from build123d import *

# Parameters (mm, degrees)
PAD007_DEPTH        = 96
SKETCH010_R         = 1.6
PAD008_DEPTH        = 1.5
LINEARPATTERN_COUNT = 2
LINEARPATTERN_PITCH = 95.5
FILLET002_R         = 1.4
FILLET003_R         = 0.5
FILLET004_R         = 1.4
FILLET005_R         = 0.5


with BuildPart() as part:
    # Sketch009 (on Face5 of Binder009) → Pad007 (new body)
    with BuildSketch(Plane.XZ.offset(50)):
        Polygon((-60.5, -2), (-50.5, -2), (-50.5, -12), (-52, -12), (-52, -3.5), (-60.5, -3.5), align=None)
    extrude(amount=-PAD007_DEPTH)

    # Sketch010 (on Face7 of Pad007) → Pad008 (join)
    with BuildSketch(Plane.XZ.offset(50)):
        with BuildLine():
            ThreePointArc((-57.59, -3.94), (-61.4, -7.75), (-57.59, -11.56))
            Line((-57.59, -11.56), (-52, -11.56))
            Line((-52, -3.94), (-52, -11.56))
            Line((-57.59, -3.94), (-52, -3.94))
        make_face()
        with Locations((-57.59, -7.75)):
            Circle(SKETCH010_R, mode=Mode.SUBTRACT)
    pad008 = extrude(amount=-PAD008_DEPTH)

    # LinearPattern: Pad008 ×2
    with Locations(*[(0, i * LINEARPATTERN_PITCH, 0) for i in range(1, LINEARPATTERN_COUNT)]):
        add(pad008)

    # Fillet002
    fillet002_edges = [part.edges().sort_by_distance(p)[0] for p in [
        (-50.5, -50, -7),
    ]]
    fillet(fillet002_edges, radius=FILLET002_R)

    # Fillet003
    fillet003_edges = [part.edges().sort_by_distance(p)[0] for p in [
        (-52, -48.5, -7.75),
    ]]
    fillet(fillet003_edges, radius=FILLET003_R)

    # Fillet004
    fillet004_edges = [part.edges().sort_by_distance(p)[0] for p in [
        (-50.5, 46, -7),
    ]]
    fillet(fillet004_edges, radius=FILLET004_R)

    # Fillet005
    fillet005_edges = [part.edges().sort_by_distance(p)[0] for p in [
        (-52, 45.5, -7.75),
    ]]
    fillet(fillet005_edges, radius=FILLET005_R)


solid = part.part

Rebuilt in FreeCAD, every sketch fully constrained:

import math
import FreeCAD as App
import Part
import Sketcher
from FreeCAD import Vector
Q = App.Units.Quantity


def edges_at(feature, points):
    """Names of the edges that pass closest to the given points."""
    edges = feature.Shape.Edges
    near = lambda p: min(range(len(edges)), key=lambda i: edges[i].distToShape(Part.Vertex(*p))[0])
    return sorted({f"Edge{near(p) + 1}" for p in points})


def add_polygon(sketch, points):
    """Adds a closed chain of lines whose ends are joined by coincident constraints."""
    first, n = sketch.GeometryCount, len(points)
    for a, b in zip(points, points[1:] + points[:1]):
        sketch.addGeometry(Part.LineSegment(App.Vector(*a, 0), App.Vector(*b, 0)), False)
    for i in range(n):
        sketch.addConstraint(Sketcher.Constraint("Coincident", first + i, 2, first + (i + 1) % n, 1))

doc = App.newDocument("Part")
body = doc.addObject("PartDesign::Body", "Body")

# Sketch on XZ plane
sketch1 = body.newObject("Sketcher::SketchObject", "Sketch")
sketch1.AttachmentSupport = (doc.getObject("XZ_Plane"), [""])
sketch1.MapMode = "FlatFace"
sketch1.AttachmentOffset = App.Placement(Vector(0, 0, 50), App.Rotation())
add_polygon(sketch1, [(-50.5, -2), (-60.5, -2), (-60.5, -3.5), (-52, -3.5), (-52, -12), (-50.5, -12)])  # lines 0-5
sketch1.addConstraint([
    Sketcher.Constraint("Horizontal", 0),
    Sketcher.Constraint("Vertical", 1),
    Sketcher.Constraint("Horizontal", 2),
    Sketcher.Constraint("Vertical", 3),
    Sketcher.Constraint("Horizontal", 4),
    Sketcher.Constraint("Vertical", 5),
    Sketcher.Constraint("Equal", 4, 1),
    Sketcher.Constraint("Equal", 2, 3),
    Sketcher.Constraint("DistanceX", 0, 2, 0, 1, Q("10 mm")),
    Sketcher.Constraint("DistanceX", 2, 1, 2, 2, Q("8.5 mm")),
    Sketcher.Constraint("DistanceY", 0, 2, -1, 1, Q("2 mm")),
    Sketcher.Constraint("DistanceX", 2, 2, -1, 1, Q("52 mm")),
])
pad1 = body.newObject("PartDesign::Pad", "Pad")
pad1.Profile = sketch1
pad1.Length = 96
pad1.Reversed = True

# Sketch on XZ plane
sketch2 = body.newObject("Sketcher::SketchObject", "Sketch001")
sketch2.AttachmentSupport = (doc.getObject("XZ_Plane"), [""])
sketch2.MapMode = "FlatFace"
sketch2.AttachmentOffset = App.Placement(Vector(0, 0, 50), App.Rotation())
sketch2.addGeometry([
    Part.ArcOfCircle(Part.Circle(Vector(-57.6, -7.8, 0), Vector(0, 0, 1), 3.8), math.radians(90), math.radians(270)),  # 0
    Part.LineSegment(Vector(-57.6, -11.6, 0), Vector(-52, -11.6, 0)),  # 1
    Part.LineSegment(Vector(-52, -11.6, 0), Vector(-52, -3.9, 0)),  # 2
    Part.LineSegment(Vector(-52, -3.9, 0), Vector(-57.6, -3.9, 0)),  # 3
    Part.Circle(Vector(-57.6, -7.8, 0), Vector(0, 0, 1), 1.6),  # 4
], False)
sketch2.addConstraint([
    Sketcher.Constraint("Tangent", 0, 2, 1, 1),
    Sketcher.Constraint("Coincident", 1, 2, 2, 1),
    Sketcher.Constraint("Coincident", 2, 2, 3, 1),
    Sketcher.Constraint("Tangent", 3, 2, 0, 1),
    Sketcher.Constraint("Horizontal", 1),
    Sketcher.Constraint("Vertical", 2),
    Sketcher.Constraint("Horizontal", 3),
    Sketcher.Constraint("Coincident", 4, 3, 0, 3),
    Sketcher.Constraint("Diameter", 4, Q("3.2 mm")),
    Sketcher.Constraint("Radius", 0, Q("3.81 mm")),
    Sketcher.Constraint("DistanceX", 1, 2, -1, 1, Q("52 mm")),
    Sketcher.Constraint("DistanceX", 1, 1, 1, 2, Q("5.59 mm")),
    Sketcher.Constraint("DistanceY", 0, 3, -1, 1, Q("7.75 mm")),
])
pad2 = body.newObject("PartDesign::Pad", "Pad001")
pad2.Profile = sketch2
pad2.Length = 1.5
pad2.Reversed = True
doc.recompute()

linearpattern = body.newObject("PartDesign::LinearPattern", "LinearPattern")
linearpattern.Originals = [pad2]
linearpattern.Direction = (doc.getObject("Y_Axis"), [""])
linearpattern.Mode = "offset"
linearpattern.Offset = 95.5
linearpattern.Occurrences = 2
body.Tip = linearpattern
doc.recompute()

fillet = body.newObject("PartDesign::Fillet", "Fillet")
fillet.Base = (linearpattern, edges_at(linearpattern, [(-50.5, -50, -7)]))
fillet.Radius = 1.4
doc.recompute()

fillet2 = body.newObject("PartDesign::Fillet", "Fillet001")
fillet2.Base = (fillet, edges_at(fillet, [(-52, -48.5, -7.75)]))
fillet2.Radius = 0.5
doc.recompute()

fillet3 = body.newObject("PartDesign::Fillet", "Fillet002")
fillet3.Base = (fillet2, edges_at(fillet2, [(-50.5, 46, -7)]))
fillet3.Radius = 1.4
doc.recompute()

fillet4 = body.newObject("PartDesign::Fillet", "Fillet003")
fillet4.Base = (fillet3, edges_at(fillet3, [(-52, 45.5, -7.75)]))
fillet4.Radius = 0.5

doc.recompute()
